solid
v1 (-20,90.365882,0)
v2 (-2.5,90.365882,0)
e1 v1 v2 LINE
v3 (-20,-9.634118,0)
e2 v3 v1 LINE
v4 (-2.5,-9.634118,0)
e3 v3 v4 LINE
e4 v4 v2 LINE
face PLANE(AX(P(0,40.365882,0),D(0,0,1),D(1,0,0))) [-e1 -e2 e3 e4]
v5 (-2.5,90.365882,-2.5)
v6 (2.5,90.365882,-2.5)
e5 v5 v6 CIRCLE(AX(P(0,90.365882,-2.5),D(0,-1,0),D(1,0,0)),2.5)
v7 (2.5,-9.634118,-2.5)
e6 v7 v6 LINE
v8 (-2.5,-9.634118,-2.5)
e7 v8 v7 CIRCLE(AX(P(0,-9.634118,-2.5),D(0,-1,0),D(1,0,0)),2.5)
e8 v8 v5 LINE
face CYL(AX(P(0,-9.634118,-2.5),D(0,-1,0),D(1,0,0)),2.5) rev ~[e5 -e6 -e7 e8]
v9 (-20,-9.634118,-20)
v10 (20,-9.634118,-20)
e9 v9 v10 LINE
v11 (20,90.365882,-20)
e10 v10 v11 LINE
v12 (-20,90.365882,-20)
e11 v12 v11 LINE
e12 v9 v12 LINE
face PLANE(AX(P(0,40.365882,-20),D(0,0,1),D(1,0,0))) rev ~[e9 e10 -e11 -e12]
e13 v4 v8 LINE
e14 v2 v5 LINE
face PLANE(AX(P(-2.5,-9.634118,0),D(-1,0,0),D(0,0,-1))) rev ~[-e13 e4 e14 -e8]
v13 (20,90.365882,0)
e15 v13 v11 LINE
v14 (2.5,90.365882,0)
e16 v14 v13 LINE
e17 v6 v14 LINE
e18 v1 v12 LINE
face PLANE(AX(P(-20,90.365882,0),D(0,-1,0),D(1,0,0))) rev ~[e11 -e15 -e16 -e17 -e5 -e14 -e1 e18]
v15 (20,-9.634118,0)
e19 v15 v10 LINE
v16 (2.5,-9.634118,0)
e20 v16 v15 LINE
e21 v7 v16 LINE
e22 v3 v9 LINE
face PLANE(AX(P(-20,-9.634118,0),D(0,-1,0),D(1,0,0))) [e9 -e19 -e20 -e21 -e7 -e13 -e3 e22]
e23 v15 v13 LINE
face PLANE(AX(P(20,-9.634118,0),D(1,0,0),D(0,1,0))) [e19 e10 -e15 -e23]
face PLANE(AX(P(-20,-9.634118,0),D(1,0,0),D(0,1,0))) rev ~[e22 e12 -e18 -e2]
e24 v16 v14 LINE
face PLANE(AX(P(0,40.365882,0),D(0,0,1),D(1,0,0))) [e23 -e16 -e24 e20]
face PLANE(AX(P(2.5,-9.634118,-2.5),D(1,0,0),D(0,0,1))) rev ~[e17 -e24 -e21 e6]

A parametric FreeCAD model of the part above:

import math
import FreeCAD as App
import Part
import Sketcher
from FreeCAD import Vector
Q = App.Units.Quantity


def add_polygon(sketch, points):
    """Adds a closed chain of lines whose ends are joined by coincident constraints."""
    first, n = sketch.GeometryCount, len(points)
    for a, b in zip(points, points[1:] + points[:1]):
        sketch.addGeometry(Part.LineSegment(App.Vector(*a, 0), App.Vector(*b, 0)), False)
    for i in range(n):
        sketch.addConstraint(Sketcher.Constraint("Coincident", first + i, 2, first + (i + 1) % n, 1))

doc = App.newDocument("Part")
body = doc.addObject("PartDesign::Body", "Body")

# Sketch on XY plane
sketch1 = body.newObject("Sketcher::SketchObject", "Sketch")
sketch1.AttachmentSupport = (doc.getObject("XY_Plane"), [""])
sketch1.MapMode = "FlatFace"
add_polygon(sketch1, [(-20, 90), (-20, -10), (20, -10), (20, 90)])  # lines 0-3
sketch1.addConstraint([
    Sketcher.Constraint("Vertical", 0),
    Sketcher.Constraint("Horizontal", 1),
    Sketcher.Constraint("Vertical", 2),
    Sketcher.Constraint("Horizontal", 3),
    Sketcher.Constraint("DistanceX", 1, 1, 1, 2, Q("40 mm")),
    Sketcher.Constraint("DistanceY", 0, 2, 0, 1, Q("100 mm")),
    Sketcher.Constraint("DistanceX", 0, 2, -1, 1, Q("20 mm")),
    Sketcher.Constraint("DistanceY", 0, 2, -1, 1, Q("9.634118 mm")),
])
pad1 = body.newObject("PartDesign::Pad", "Pad")
pad1.Profile = sketch1
pad1.Length = 20
pad1.Reversed = True

# Sketch on XZ plane
sketch2 = body.newObject("Sketcher::SketchObject", "Sketch001")
sketch2.AttachmentSupport = (doc.getObject("XZ_Plane"), [""])
sketch2.MapMode = "FlatFace"
sketch2.AttachmentOffset = App.Placement(Vector(0, 0, 9.634118), App.Rotation())
sketch2.addGeometry([
    Part.ArcOfCircle(Part.Circle(Vector(0, -2.5, 0), Vector(0, 0, 1), 2.5), math.radians(180), math.radians(360)),
    Part.LineSegment(Vector(2.5, -2.5, 0), Vector(2.5, 0, 0)),
    Part.LineSegment(Vector(2.5, 0, 0), Vector(-2.5, 0, 0)),
    Part.LineSegment(Vector(-2.5, 0, 0), Vector(-2.5, -2.5, 0)),
], False)
sketch2.addConstraint([
    Sketcher.Constraint("Tangent", 0, 2, 1, 1),
    Sketcher.Constraint("Coincident", 1, 2, 2, 1),
    Sketcher.Constraint("Coincident", 2, 2, 3, 1),
    Sketcher.Constraint("Tangent", 3, 2, 0, 1),
    Sketcher.Constraint("Vertical", 1),
    Sketcher.Constraint("Horizontal", 2),
    Sketcher.Constraint("Vertical", 3),
    Sketcher.Constraint("Symmetric", 1, 2, 2, 2, -1, 1),
    Sketcher.Constraint("Radius", 0, Q("2.5 mm")),
    Sketcher.Constraint("DistanceY", 1, 1, 1, 2, Q("2.5 mm")),
])
pocket1 = body.newObject("PartDesign::Pocket", "Pocket")
pocket1.Profile = sketch2
pocket1.Type = "ThroughAll"

doc.recompute()
